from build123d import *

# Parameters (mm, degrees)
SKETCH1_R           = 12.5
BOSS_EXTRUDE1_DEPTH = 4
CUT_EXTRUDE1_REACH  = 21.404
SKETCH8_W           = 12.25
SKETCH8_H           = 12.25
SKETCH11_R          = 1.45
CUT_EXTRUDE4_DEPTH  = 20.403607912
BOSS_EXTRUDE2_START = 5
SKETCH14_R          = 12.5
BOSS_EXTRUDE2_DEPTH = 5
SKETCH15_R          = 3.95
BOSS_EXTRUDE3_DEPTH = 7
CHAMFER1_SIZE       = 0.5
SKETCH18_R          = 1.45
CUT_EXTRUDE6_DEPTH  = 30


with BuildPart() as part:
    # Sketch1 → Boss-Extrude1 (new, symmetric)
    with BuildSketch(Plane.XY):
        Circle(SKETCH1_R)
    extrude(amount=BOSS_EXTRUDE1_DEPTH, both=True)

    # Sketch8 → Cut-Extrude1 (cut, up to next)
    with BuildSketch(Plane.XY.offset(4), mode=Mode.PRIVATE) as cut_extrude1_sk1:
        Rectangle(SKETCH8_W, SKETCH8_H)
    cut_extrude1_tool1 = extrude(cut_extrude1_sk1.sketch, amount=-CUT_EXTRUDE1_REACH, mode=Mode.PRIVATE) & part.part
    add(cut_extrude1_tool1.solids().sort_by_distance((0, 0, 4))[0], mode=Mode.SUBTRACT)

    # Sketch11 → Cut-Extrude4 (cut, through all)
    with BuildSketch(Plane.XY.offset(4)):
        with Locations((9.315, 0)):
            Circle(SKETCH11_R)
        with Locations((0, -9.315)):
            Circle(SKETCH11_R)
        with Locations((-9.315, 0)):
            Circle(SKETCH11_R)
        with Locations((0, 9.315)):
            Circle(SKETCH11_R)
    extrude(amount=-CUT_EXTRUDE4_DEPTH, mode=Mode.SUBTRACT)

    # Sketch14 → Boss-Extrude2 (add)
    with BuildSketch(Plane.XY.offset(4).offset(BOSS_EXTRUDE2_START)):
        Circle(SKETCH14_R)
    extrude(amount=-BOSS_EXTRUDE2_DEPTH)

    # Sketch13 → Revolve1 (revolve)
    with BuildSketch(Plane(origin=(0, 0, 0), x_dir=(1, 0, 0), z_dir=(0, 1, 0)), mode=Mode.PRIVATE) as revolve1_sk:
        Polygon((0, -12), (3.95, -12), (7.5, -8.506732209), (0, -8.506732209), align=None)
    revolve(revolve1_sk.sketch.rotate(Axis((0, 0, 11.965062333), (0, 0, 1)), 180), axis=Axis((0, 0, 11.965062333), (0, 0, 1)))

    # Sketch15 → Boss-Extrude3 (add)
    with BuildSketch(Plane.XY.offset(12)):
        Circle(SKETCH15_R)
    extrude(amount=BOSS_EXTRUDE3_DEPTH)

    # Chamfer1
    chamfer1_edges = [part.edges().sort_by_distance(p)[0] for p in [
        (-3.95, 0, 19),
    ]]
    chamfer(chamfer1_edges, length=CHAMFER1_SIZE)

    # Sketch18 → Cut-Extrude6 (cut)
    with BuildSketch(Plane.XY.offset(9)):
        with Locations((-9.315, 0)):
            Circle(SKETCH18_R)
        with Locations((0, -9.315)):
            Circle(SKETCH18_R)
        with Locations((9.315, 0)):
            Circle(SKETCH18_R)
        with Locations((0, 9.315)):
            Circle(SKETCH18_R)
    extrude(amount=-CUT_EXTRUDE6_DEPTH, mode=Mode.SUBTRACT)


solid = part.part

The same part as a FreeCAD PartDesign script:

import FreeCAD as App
import Part
import Sketcher
from FreeCAD import Vector


def edges_at(feature, points):
    """Names of the edges that pass closest to the given points."""
    edges = feature.Shape.Edges
    near = lambda p: min(range(len(edges)), key=lambda i: edges[i].distToShape(Part.Vertex(*p))[0])
    return sorted({f"Edge{near(p) + 1}" for p in points})


def add_polygon(sketch, points):
    """Adds a closed chain of lines whose ends are joined by coincident constraints."""
    first, n = sketch.GeometryCount, len(points)
    for a, b in zip(points, points[1:] + points[:1]):
        sketch.addGeometry(Part.LineSegment(App.Vector(*a, 0), App.Vector(*b, 0)), False)
    for i in range(n):
        sketch.addConstraint(Sketcher.Constraint("Coincident", first + i, 2, first + (i + 1) % n, 1))

doc = App.newDocument("Part")
body = doc.addObject("PartDesign::Body", "Body")

# Sketch on XY plane
sketch1 = body.newObject("Sketcher::SketchObject", "Sketch")
sketch1.AttachmentSupport = (doc.getObject("XY_Plane"), [""])
sketch1.MapMode = "FlatFace"
sketch1.addGeometry(Part.Circle(Vector(0, 0, 0), Vector(0, 0, 1), 12.5), False)
sketch1.addConstraint([
    Sketcher.Constraint("Coincident", 0, 3, -1, 1),
    Sketcher.Constraint("Diameter", 0, 25.0),
])
pad1 = body.newObject("PartDesign::Pad", "Pad")
pad1.Profile = sketch1
pad1.Length = 8
pad1.Midplane = True

# Sketch on XY plane
sketch2 = body.newObject("Sketcher::SketchObject", "Sketch001")
sketch2.AttachmentSupport = (doc.getObject("XY_Plane"), [""])
sketch2.MapMode = "FlatFace"
sketch2.AttachmentOffset = App.Placement(Vector(0, 0, 4), App.Rotation())
add_polygon(sketch2, [(-6.125, 6.125), (-6.125, -6.125), (6.125, -6.125), (6.125, 6.125)])  # lines 0-3
sketch2.addConstraint([
    Sketcher.Constraint("Vertical", 0),
    Sketcher.Constraint("Horizontal", 1),
    Sketcher.Constraint("Vertical", 2),
    Sketcher.Constraint("Horizontal", 3),
    Sketcher.Constraint("Symmetric", 0, 2, 2, 2, -1, 1),
    Sketcher.Constraint("Equal", 3, 0),
    Sketcher.Constraint("DistanceX", 1, 1, 1, 2, 12.25),
])
pocket1 = body.newObject("PartDesign::Pocket", "Pocket")
pocket1.Profile = sketch2
pocket1.Type = "UpToFirst"

# Sketch on XY plane
sketch3 = body.newObject("Sketcher::SketchObject", "Sketch002")
sketch3.AttachmentSupport = (doc.getObject("XY_Plane"), [""])
sketch3.MapMode = "FlatFace"
sketch3.AttachmentOffset = App.Placement(Vector(0, 0, 4), App.Rotation())
sketch3.addGeometry([
    Part.Circle(Vector(9.315, 0, 0), Vector(0, 0, 1), 1.45),
    Part.Circle(Vector(0, -9.315, 0), Vector(0, 0, 1), 1.45),
    Part.Circle(Vector(-9.315, 0, 0), Vector(0, 0, 1), 1.45),
    Part.Circle(Vector(0, 9.315, 0), Vector(0, 0, 1), 1.45),
], False)
sketch3.addConstraint([
    Sketcher.Constraint("Equal", 0, 1),
    Sketcher.Constraint("Equal", 1, 2),
    Sketcher.Constraint("Equal", 2, 3),
    Sketcher.Constraint("Symmetric", 0, 3, 2, 3, -1, 1),
    Sketcher.Constraint("Symmetric", 1, 3, 3, 3, -1, 1),
    Sketcher.Constraint("PointOnObject", 0, 3, -1),
    Sketcher.Constraint("PointOnObject", 1, 3, -2),
    Sketcher.Constraint("Diameter", 0, 2.9),
    Sketcher.Constraint("DistanceX", 2, 3, 0, 3, 18.63),
    Sketcher.Constraint("DistanceY", 1, 3, 3, 3, 18.63),
])
pocket2 = body.newObject("PartDesign::Pocket", "Pocket001")
pocket2.Profile = sketch3
pocket2.Type = "ThroughAll"

# Sketch on XY plane
sketch4 = body.newObject("Sketcher::SketchObject", "Sketch003")
sketch4.AttachmentSupport = (doc.getObject("XY_Plane"), [""])
sketch4.MapMode = "FlatFace"
sketch4.AttachmentOffset = App.Placement(Vector(0, 0, 9), App.Rotation())
sketch4.addGeometry(Part.Circle(Vector(0, 0, 0), Vector(0, 0, 1), 12.5), False)
sketch4.addConstraint([
    Sketcher.Constraint("Coincident", 0, 3, -1, 1),
    Sketcher.Constraint("Diameter", 0, 25.0),
])
pad2 = body.newObject("PartDesign::Pad", "Pad001")
pad2.Profile = sketch4
pad2.Length = 5
pad2.Reversed = True

# Sketch on XZ plane
sketch5 = body.newObject("Sketcher::SketchObject", "Sketch004")
sketch5.AttachmentSupport = (doc.getObject("XZ_Plane"), [""])
sketch5.MapMode = "FlatFace"
add_polygon(sketch5, [(0, 12), (3.95, 12), (7.5, 8.506732), (0, 8.506732)])  # lines 0-3
sketch5.addConstraint([
    Sketcher.Constraint("Horizontal", 0),
    Sketcher.Constraint("Horizontal", 2),
    Sketcher.Constraint("Vertical", 3),
    Sketcher.Constraint("PointOnObject", 2, 2, -2),
    Sketcher.Constraint("DistanceX", 2, 2, 2, 1, 7.5),
    Sketcher.Constraint("DistanceY", -1, 1, 0, 2, 12.0),
    Sketcher.Constraint("DistanceX", 0, 1, 0, 2, 3.95),
    Sketcher.Constraint("DistanceY", 3, 1, 3, 2, 3.493268),
])
revolution = body.newObject("PartDesign::Revolution", "Revolution")
revolution.Profile = sketch5
revolution.ReferenceAxis = (sketch5, ["V_Axis"])
revolution.Angle = 360

# Sketch on XY plane
sketch6 = body.newObject("Sketcher::SketchObject", "Sketch005")
sketch6.AttachmentSupport = (doc.getObject("XY_Plane"), [""])
sketch6.MapMode = "FlatFace"
sketch6.AttachmentOffset = App.Placement(Vector(0, 0, 12), App.Rotation())
sketch6.addGeometry(Part.Circle(Vector(0, 0, 0), Vector(0, 0, 1), 3.95), False)
sketch6.addConstraint([
    Sketcher.Constraint("Coincident", 0, 3, -1, 1),
    Sketcher.Constraint("Diameter", 0, 7.9),
])
pad3 = body.newObject("PartDesign::Pad", "Pad002")
pad3.Profile = sketch6
pad3.Length = 7
doc.recompute()

chamfer = body.newObject("PartDesign::Chamfer", "Chamfer")
chamfer.Base = (pad3, edges_at(pad3, [(-3.95, 0, 19)]))
chamfer.Size = 0.5

# Sketch on XY plane
sketch7 = body.newObject("Sketcher::SketchObject", "Sketch006")
sketch7.AttachmentSupport = (doc.getObject("XY_Plane"), [""])
sketch7.MapMode = "FlatFace"
sketch7.AttachmentOffset = App.Placement(Vector(0, 0, 9), App.Rotation())
sketch7.addGeometry([
    Part.Circle(Vector(-9.315, 0, 0), Vector(0, 0, 1), 1.45),
    Part.Circle(Vector(0, -9.315, 0), Vector(0, 0, 1), 1.45),
    Part.Circle(Vector(9.315, 0, 0), Vector(0, 0, 1), 1.45),
    Part.Circle(Vector(0, 9.315, 0), Vector(0, 0, 1), 1.45),
], False)
sketch7.addConstraint([
    Sketcher.Constraint("Equal", 0, 1),
    Sketcher.Constraint("Equal", 1, 2),
    Sketcher.Constraint("Equal", 2, 3),
    Sketcher.Constraint("Symmetric", 0, 3, 2, 3, -1, 1),
    Sketcher.Constraint("Symmetric", 1, 3, 3, 3, -1, 1),
    Sketcher.Constraint("PointOnObject", 0, 3, -1),
    Sketcher.Constraint("PointOnObject", 1, 3, -2),
    Sketcher.Constraint("Diameter", 0, 2.9),
    Sketcher.Constraint("DistanceX", 0, 3, 2, 3, 18.63),
    Sketcher.Constraint("DistanceY", 1, 3, 3, 3, 18.63),
])
pocket3 = body.newObject("PartDesign::Pocket", "Pocket002")
pocket3.Profile = sketch7
pocket3.Length = 30

doc.recompute()
